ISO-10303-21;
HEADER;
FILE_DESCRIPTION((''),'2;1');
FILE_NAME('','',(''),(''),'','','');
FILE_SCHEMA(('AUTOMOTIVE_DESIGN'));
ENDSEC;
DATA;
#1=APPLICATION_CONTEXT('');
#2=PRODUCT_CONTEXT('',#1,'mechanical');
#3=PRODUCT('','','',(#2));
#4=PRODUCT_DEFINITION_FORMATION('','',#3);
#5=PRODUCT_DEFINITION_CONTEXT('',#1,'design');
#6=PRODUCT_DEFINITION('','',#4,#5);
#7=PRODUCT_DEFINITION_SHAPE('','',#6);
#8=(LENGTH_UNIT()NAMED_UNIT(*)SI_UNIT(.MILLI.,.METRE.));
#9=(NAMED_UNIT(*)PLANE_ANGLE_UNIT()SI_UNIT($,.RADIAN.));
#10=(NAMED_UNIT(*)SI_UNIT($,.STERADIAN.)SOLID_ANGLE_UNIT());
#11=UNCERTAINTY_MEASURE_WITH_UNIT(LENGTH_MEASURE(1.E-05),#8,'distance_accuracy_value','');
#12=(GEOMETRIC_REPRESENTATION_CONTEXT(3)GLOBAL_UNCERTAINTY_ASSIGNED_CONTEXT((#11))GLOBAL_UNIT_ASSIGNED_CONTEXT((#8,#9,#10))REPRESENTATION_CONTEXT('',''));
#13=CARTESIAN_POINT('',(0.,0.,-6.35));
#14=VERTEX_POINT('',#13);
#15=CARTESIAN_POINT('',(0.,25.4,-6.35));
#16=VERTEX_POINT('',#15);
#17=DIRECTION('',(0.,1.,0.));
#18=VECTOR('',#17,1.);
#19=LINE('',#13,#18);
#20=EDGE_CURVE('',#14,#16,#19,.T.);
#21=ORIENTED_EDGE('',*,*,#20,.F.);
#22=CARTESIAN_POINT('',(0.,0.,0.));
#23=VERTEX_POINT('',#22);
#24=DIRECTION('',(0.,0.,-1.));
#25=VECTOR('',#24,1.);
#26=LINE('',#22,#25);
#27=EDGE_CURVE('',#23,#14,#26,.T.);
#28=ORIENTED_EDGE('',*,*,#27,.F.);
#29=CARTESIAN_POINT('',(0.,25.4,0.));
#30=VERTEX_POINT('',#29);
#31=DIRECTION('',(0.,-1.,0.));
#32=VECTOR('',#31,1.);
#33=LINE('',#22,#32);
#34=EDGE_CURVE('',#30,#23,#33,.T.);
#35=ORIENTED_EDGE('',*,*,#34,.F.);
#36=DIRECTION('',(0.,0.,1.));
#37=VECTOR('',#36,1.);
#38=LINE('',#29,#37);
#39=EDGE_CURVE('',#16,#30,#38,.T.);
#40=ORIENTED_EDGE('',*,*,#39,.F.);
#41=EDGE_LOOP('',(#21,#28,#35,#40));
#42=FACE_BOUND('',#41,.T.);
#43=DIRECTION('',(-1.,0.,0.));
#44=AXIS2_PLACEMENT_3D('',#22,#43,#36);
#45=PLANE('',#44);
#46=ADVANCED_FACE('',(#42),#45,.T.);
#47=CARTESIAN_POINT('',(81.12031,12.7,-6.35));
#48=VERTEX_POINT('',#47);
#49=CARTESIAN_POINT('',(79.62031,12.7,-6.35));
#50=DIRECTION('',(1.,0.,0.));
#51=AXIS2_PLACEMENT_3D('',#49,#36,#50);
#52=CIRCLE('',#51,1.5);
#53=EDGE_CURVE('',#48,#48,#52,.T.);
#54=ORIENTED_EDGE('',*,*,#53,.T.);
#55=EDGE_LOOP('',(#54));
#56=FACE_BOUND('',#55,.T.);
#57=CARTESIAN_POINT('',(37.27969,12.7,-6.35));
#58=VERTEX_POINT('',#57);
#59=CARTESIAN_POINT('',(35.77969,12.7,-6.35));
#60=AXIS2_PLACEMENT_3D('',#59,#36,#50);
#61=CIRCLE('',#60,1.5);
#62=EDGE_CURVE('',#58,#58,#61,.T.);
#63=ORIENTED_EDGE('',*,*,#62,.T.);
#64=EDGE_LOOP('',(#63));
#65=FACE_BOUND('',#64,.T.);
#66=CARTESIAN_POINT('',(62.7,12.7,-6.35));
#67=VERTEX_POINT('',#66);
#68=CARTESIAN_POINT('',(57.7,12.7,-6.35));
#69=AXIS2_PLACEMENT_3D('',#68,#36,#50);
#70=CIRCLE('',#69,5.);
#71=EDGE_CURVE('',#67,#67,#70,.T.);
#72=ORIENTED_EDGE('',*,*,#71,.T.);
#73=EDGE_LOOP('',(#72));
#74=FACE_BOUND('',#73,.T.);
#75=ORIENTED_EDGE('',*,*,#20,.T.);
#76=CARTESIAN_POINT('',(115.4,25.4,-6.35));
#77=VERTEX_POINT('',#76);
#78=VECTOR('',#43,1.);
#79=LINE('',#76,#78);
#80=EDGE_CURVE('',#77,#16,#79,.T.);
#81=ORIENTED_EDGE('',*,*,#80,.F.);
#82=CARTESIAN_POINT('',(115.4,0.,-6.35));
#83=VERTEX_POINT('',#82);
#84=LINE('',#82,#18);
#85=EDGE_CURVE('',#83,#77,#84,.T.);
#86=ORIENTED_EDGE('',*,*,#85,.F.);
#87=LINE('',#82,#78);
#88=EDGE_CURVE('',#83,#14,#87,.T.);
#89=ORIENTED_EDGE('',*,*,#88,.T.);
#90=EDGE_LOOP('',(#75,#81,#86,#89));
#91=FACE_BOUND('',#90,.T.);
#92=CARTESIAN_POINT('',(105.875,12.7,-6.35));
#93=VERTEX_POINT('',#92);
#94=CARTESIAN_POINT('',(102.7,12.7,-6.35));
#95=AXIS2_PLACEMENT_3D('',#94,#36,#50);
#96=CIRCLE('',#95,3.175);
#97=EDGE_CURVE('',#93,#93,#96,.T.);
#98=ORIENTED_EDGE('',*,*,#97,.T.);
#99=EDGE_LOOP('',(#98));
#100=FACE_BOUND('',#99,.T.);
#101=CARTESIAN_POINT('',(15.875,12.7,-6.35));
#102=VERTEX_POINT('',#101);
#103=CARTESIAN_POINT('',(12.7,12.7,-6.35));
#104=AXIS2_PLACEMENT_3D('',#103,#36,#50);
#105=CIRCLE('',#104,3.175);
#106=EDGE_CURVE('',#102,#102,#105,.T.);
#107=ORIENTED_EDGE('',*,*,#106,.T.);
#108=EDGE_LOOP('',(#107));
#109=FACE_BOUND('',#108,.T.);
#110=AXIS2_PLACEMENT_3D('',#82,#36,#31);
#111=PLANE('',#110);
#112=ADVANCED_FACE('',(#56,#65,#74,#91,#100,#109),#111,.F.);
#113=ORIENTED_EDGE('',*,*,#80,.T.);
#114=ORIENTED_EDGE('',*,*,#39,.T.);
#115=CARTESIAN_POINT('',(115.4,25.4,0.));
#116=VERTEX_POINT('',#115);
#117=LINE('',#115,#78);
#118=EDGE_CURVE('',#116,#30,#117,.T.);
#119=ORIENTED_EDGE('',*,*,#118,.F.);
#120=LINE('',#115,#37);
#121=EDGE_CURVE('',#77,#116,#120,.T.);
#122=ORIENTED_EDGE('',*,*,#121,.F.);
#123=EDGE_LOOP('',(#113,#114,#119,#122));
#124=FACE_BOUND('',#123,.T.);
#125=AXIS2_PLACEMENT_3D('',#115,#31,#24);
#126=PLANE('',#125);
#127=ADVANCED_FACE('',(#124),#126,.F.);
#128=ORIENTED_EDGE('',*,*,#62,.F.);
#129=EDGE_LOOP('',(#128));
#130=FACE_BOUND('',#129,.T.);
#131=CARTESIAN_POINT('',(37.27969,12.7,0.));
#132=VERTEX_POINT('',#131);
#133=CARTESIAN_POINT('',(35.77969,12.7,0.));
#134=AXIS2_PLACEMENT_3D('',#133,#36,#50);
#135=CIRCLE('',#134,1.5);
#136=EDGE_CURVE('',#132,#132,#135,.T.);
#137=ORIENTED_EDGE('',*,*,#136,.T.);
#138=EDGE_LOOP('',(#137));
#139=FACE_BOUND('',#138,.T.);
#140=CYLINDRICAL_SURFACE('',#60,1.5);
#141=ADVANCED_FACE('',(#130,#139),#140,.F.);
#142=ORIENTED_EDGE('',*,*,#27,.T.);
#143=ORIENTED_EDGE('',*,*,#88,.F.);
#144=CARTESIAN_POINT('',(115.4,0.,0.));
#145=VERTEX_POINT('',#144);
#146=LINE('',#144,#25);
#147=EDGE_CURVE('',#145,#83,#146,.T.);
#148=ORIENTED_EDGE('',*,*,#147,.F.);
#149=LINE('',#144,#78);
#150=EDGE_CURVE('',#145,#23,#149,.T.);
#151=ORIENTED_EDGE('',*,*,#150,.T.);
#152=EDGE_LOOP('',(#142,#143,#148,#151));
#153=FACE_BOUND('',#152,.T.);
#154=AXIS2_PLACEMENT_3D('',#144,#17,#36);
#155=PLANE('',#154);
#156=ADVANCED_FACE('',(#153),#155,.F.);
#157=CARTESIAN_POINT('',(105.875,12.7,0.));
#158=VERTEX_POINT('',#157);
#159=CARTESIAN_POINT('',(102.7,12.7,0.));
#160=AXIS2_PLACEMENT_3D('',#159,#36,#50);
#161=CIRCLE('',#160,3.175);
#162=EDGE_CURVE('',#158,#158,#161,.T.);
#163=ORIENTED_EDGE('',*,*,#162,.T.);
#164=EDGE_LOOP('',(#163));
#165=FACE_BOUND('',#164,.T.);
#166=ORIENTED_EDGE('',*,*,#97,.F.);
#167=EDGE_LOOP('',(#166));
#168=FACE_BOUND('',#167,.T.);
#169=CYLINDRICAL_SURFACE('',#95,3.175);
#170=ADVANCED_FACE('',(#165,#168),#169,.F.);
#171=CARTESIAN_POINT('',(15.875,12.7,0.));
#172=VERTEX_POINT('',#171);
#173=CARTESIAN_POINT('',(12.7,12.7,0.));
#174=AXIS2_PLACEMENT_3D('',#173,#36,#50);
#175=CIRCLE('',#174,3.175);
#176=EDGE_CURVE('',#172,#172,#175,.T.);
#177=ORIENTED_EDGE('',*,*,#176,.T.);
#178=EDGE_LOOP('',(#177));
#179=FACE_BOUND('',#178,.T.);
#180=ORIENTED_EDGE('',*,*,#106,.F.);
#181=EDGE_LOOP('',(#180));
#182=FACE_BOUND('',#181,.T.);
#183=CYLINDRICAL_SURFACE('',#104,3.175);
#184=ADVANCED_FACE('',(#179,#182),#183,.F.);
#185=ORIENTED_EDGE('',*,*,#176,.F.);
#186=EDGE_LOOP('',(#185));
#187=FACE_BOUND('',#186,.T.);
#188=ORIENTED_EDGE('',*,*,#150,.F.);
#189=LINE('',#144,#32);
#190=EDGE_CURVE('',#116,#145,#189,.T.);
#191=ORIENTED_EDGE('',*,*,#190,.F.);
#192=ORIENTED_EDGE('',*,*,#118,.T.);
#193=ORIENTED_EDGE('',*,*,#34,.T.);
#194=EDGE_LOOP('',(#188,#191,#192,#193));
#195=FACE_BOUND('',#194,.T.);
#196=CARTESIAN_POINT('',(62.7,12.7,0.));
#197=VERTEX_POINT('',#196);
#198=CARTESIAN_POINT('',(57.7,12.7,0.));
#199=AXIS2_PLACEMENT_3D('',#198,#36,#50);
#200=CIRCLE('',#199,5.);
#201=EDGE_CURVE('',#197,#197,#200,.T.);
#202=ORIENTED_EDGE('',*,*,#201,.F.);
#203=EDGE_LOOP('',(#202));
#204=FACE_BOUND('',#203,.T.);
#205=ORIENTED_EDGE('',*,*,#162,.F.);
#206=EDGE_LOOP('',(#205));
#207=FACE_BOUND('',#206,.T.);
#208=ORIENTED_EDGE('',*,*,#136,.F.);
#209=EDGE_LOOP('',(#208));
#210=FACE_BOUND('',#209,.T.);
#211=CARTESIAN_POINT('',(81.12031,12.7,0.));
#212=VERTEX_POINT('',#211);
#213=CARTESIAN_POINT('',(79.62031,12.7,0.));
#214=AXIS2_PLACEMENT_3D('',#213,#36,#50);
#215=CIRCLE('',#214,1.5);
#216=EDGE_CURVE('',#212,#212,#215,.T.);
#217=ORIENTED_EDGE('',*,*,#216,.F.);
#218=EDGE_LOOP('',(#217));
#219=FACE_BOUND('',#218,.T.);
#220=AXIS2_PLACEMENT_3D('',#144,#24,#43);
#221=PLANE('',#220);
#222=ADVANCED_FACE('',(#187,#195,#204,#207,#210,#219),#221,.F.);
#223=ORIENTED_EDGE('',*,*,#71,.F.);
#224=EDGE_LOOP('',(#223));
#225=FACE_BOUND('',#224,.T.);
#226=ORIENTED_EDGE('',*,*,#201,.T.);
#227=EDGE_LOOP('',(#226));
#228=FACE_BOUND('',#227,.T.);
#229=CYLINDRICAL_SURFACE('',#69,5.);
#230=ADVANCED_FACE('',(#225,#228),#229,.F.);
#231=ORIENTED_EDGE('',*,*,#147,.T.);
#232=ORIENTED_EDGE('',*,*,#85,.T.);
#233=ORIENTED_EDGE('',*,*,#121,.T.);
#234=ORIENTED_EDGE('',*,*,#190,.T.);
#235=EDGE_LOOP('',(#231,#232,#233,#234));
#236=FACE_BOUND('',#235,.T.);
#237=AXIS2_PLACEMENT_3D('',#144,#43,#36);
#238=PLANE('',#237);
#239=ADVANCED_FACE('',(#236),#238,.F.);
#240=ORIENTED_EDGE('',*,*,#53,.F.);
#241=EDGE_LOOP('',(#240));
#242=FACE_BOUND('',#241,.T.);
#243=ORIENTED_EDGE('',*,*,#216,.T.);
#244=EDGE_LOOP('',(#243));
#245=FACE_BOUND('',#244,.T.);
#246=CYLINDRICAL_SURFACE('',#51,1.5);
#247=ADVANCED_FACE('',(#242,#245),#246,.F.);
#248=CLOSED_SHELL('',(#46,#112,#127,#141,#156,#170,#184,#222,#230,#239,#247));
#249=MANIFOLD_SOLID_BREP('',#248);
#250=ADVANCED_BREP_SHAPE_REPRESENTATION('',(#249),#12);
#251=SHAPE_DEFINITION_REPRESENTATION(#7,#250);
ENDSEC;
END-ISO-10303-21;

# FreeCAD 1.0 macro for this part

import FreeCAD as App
import Part
import Sketcher

V = App.Vector
Q = App.Units.Quantity


def add_polygon(sketch, points):
    """Adds a closed chain of lines whose ends are joined by coincident constraints."""
    first, n = sketch.GeometryCount, len(points)
    for a, b in zip(points, points[1:] + points[:1]):
        sketch.addGeometry(Part.LineSegment(App.Vector(*a, 0), App.Vector(*b, 0)), False)
    for i in range(n):
        sketch.addConstraint(Sketcher.Constraint("Coincident", first + i, 2, first + (i + 1) % n, 1))

doc = App.newDocument("Part")
body = doc.addObject("PartDesign::Body", "Body")

# Sketch on YZ plane
sketch1 = doc.addObject("Sketcher::SketchObject", "Sketch")
body.addObject(sketch1)
sketch1.AttachmentSupport = (doc.YZ_Plane, [""])
sketch1.MapMode = "FlatFace"
add_polygon(sketch1, [(25, 0), (0, 0), (0, -6), (25, -6)])  # lines 0-3
sketch1.addConstraint([
    Sketcher.Constraint("Horizontal", 0),
    Sketcher.Constraint("Vertical", 1),
    Sketcher.Constraint("Horizontal", 2),
    Sketcher.Constraint("Vertical", 3),
    Sketcher.Constraint("Coincident", 0, 2, -1, 1),
    Sketcher.Constraint("DistanceX", 0, 2, 0, 1, Q("25.4 mm")),
    Sketcher.Constraint("DistanceY", 1, 2, 1, 1, Q("6.35 mm")),
])
pad1 = doc.addObject("PartDesign::Pad", "Pad")
body.addObject(pad1)
pad1.Profile = sketch1
pad1.Length = 115.4

# Sketch on XY plane
sketch2 = doc.addObject("Sketcher::SketchObject", "Sketch001")
body.addObject(sketch2)
sketch2.AttachmentSupport = (doc.XY_Plane, [""])
sketch2.MapMode = "FlatFace"
sketch2.addGeometry([
    Part.Circle(V(57.7, 12.7, 0), V(0, 0, 1), 5),  # 0
    Part.Circle(V(35.8, 12.7, 0), V(0, 0, 1), 1.5),  # 1
    Part.Circle(V(12.7, 12.7, 0), V(0, 0, 1), 3.2),  # 2
    Part.Circle(V(79.6, 12.7, 0), V(0, 0, 1), 1.5),  # 3
    Part.Circle(V(102.7, 12.7, 0), V(0, 0, 1), 3.2),  # 4
], False)
sketch2.addConstraint([
    Sketcher.Constraint("Equal", 1, 3),
    Sketcher.Constraint("Equal", 2, 4),
    Sketcher.Constraint("Horizontal", 0, 3, 1, 3),
    Sketcher.Constraint("Horizontal", 1, 3, 2, 3),
    Sketcher.Constraint("Horizontal", 2, 3, 3, 3),
    Sketcher.Constraint("Horizontal", 3, 3, 4, 3),
    Sketcher.Constraint("Diameter", 0, Q("10 mm")),
    Sketcher.Constraint("Diameter", 1, Q("3 mm")),
    Sketcher.Constraint("Diameter", 2, Q("6.35 mm")),
    Sketcher.Constraint("DistanceX", 2, 3, 0, 3, Q("45 mm")),
    Sketcher.Constraint("DistanceX", 0, 3, 4, 3, Q("45 mm")),
    Sketcher.Constraint("DistanceX", -1, 1, 0, 3, Q("57.7 mm")),
    Sketcher.Constraint("DistanceY", -1, 1, 0, 3, Q("12.7 mm")),
    Sketcher.Constraint("DistanceX", -1, 1, 1, 3, Q("35.77969 mm")),
    Sketcher.Constraint("DistanceX", -1, 1, 3, 3, Q("79.62031 mm")),
])
pocket1 = doc.addObject("PartDesign::Pocket", "Pocket")
body.addObject(pocket1)
pocket1.Profile = sketch2
pocket1.Type = "ThroughAll"

doc.recompute()
